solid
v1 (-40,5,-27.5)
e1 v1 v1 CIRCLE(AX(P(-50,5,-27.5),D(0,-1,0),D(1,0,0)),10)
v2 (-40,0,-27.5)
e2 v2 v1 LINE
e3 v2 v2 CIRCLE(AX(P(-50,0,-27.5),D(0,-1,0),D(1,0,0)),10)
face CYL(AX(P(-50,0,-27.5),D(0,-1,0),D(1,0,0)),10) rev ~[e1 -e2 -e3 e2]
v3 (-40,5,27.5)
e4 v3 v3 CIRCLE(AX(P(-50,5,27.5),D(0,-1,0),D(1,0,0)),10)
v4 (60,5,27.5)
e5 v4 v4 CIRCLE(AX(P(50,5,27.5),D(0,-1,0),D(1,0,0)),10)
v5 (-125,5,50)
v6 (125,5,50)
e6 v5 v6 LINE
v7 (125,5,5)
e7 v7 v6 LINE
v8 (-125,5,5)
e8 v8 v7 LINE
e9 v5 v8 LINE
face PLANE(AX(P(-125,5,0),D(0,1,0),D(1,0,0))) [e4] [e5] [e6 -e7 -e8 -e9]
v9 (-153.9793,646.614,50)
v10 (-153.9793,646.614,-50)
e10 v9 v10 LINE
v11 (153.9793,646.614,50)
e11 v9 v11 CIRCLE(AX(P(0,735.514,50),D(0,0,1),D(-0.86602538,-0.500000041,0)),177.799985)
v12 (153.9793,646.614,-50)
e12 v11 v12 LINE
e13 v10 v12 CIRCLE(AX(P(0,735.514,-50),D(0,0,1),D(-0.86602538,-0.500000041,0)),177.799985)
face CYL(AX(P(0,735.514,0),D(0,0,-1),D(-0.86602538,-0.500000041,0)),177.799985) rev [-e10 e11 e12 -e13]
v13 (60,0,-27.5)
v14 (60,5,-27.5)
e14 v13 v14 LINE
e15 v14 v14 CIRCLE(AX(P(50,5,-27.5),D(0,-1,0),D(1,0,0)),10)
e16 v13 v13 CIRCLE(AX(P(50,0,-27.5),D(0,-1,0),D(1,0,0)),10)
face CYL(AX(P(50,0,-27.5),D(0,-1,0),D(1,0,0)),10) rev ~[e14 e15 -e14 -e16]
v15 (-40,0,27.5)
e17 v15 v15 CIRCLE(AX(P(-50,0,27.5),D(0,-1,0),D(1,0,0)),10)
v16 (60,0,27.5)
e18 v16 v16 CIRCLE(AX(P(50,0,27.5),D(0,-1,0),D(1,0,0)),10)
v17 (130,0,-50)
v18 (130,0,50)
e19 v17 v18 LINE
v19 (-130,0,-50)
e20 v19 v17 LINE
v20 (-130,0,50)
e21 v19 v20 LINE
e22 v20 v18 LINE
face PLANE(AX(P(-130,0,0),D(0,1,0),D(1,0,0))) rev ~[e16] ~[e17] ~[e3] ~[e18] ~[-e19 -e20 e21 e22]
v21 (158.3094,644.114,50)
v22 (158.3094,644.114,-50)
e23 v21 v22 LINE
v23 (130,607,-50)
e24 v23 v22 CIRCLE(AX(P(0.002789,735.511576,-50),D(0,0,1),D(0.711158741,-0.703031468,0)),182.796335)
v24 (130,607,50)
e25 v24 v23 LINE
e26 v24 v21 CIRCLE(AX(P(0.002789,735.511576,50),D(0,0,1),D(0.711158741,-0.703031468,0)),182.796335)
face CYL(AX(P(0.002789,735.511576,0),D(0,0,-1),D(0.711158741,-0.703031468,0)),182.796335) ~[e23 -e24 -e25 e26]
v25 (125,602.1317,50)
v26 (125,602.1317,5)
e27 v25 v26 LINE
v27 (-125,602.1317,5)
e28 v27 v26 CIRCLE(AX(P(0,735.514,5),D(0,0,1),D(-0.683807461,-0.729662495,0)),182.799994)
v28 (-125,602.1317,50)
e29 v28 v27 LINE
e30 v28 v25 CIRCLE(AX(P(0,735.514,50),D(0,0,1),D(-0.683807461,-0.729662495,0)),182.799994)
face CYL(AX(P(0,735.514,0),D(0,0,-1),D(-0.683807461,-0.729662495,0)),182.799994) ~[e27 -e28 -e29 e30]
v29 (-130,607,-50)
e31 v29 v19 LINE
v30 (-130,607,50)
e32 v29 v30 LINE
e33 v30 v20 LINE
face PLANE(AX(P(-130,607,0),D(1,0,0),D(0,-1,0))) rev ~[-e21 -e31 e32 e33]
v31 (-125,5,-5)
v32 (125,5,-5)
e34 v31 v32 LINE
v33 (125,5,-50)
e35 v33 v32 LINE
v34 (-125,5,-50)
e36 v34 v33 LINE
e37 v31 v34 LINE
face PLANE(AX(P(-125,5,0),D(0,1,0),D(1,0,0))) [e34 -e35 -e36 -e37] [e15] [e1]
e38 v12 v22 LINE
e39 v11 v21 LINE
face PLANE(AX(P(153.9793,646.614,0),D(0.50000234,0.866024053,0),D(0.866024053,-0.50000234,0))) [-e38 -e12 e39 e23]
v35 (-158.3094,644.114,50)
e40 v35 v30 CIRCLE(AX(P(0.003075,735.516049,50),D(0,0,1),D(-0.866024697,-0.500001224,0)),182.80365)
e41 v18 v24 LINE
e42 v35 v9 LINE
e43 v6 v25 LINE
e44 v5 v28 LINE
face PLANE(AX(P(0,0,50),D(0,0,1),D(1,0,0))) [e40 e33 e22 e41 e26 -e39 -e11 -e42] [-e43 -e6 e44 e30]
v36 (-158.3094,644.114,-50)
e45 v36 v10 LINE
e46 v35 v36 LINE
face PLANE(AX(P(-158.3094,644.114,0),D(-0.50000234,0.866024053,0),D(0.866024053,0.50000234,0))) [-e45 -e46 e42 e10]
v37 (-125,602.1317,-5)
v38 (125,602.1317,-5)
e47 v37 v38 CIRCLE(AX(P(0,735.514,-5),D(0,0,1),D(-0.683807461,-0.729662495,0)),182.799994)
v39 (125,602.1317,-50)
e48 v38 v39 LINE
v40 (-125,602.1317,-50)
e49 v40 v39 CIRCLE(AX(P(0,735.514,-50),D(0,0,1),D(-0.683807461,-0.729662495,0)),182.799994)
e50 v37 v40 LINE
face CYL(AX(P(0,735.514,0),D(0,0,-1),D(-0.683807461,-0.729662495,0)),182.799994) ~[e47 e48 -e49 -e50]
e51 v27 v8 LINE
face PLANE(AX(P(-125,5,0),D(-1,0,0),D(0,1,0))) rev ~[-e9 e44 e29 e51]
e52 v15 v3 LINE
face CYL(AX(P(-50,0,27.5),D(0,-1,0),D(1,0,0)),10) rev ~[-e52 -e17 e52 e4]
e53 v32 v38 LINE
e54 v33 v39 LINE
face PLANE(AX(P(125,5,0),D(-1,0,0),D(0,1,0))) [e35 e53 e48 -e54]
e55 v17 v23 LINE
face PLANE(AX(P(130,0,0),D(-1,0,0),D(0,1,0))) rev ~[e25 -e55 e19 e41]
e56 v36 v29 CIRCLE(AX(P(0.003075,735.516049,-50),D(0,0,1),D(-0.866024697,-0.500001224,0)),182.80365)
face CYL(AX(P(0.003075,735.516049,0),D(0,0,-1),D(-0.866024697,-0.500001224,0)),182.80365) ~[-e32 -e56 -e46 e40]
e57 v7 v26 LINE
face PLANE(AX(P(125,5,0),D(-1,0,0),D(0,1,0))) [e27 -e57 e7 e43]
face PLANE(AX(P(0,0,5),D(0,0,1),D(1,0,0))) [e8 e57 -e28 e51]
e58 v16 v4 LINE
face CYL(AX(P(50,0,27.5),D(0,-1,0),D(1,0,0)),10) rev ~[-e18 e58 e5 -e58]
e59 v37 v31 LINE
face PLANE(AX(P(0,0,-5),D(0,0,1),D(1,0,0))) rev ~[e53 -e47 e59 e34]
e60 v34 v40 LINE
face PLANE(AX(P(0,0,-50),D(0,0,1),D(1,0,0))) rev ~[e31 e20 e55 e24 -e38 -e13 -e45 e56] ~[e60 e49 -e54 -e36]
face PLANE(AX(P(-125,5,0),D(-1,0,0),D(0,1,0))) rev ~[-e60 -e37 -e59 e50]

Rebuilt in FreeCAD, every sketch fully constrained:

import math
import FreeCAD as App
import Part
import Sketcher

V = App.Vector
Q = App.Units.Quantity

doc = App.newDocument("Part")
body = doc.addObject("PartDesign::Body", "Body")

# Sketch on XY plane
sketch1 = body.newObject("Sketcher::SketchObject", "Sketch")
sketch1.AttachmentSupport = (doc.getObject("XY_Plane"), [""])
sketch1.MapMode = "FlatFace"
sketch1.addGeometry([
    Part.ArcOfCircle(Part.Circle(V(0, 735.5, 0), V(0, 0, 1), 182.8), math.radians(-150), math.radians(-135.33)),  # 0
    Part.LineSegment(V(-130, 607, 0), V(-130, 0, 0)),  # 1
    Part.LineSegment(V(-130, 0, 0), V(130, 0, 0)),  # 2
    Part.LineSegment(V(130, 0, 0), V(130, 607, 0)),  # 3
    Part.ArcOfCircle(Part.Circle(V(0, 735.5, 0), V(0, 0, 1), 182.8), math.radians(-44.67), math.radians(-30)),  # 4
    Part.LineSegment(V(158.3, 644.1, 0), V(154, 646.6, 0)),  # 5
    Part.ArcOfCircle(Part.Circle(V(0, 735.5, 0), V(0, 0, 1), 177.8), math.radians(-150), math.radians(-30)),  # 6
    Part.LineSegment(V(-154, 646.6, 0), V(-158.3, 644.1, 0)),  # 7
    Part.LineSegment(V(125, 602.1, 0), V(125, 5, 0)),  # 8
    Part.LineSegment(V(125, 5, 0), V(-125, 5, 0)),  # 9
    Part.LineSegment(V(-125, 5, 0), V(-125, 602.1, 0)),  # 10
    Part.ArcOfCircle(Part.Circle(V(0, 735.5, 0), V(0, 0, 1), 182.8), math.radians(-133), math.radians(-47)),  # 11
], False)
sketch1.addConstraint([
    Sketcher.Constraint("Coincident", 0, 2, 1, 1),
    Sketcher.Constraint("Coincident", 1, 2, 2, 1),
    Sketcher.Constraint("Coincident", 2, 2, 3, 1),
    Sketcher.Constraint("Coincident", 3, 2, 4, 1),
    Sketcher.Constraint("Coincident", 4, 2, 5, 1),
    Sketcher.Constraint("Coincident", 5, 2, 6, 2),
    Sketcher.Constraint("Coincident", 6, 1, 7, 1),
    Sketcher.Constraint("Coincident", 7, 2, 0, 1),
    Sketcher.Constraint("Coincident", 8, 2, 9, 1),
    Sketcher.Constraint("Coincident", 9, 2, 10, 1),
    Sketcher.Constraint("Coincident", 10, 2, 11, 1),
    Sketcher.Constraint("Coincident", 11, 2, 8, 1),
    Sketcher.Constraint("Vertical", 1),
    Sketcher.Constraint("Horizontal", 2),
    Sketcher.Constraint("Vertical", 3),
    Sketcher.Constraint("Vertical", 8),
    Sketcher.Constraint("Horizontal", 9),
    Sketcher.Constraint("Vertical", 10),
    Sketcher.Constraint("Coincident", 11, 3, 6, 3),
    Sketcher.Constraint("Symmetric", 1, 2, 2, 2, -1, 1),
    Sketcher.Constraint("Symmetric", 5, 2, 6, 1, -2),
    Sketcher.Constraint("Symmetric", 4, 2, 7, 2, -2),
    Sketcher.Constraint("Horizontal", 0, 2, 3, 2),
    Sketcher.Constraint("Horizontal", 10, 2, 11, 2),
    Sketcher.Constraint("Radius", 6, Q("177.8 mm")),
    Sketcher.Constraint("Radius", 11, Q("182.8 mm")),
    Sketcher.Constraint("DistanceX", 2, 1, 2, 2, Q("260 mm")),
    Sketcher.Constraint("DistanceY", 1, 2, 1, 1, Q("607 mm")),
    Sketcher.Constraint("Distance", 5, Q("5 mm")),
    Sketcher.Constraint("DistanceY", -1, 1, 8, 2, Q("5 mm")),
    Sketcher.Constraint("DistanceX", 8, 2, 2, 2, Q("5 mm")),
    Sketcher.Constraint("Angle", 5, Q("149.9998 deg")),
    Sketcher.Constraint("DistanceX", -1, 1, 4, 2, Q("158.3094 mm")),
    Sketcher.Constraint("Radius", 0, Q("182.8036 mm")),
    Sketcher.Constraint("Radius", 4, Q("182.7963 mm")),
    Sketcher.Constraint("DistanceY", 8, 2, 8, 1, Q("597.1317 mm")),
])
pad1 = body.newObject("PartDesign::Pad", "Pad")
pad1.Profile = sketch1
pad1.Length = 100
pad1.Midplane = True

# Sketch on XY plane
sketch2 = body.newObject("Sketcher::SketchObject", "Sketch001")
sketch2.AttachmentSupport = (doc.getObject("XY_Plane"), [""])
sketch2.MapMode = "FlatFace"
sketch2.addGeometry([
    Part.ArcOfCircle(Part.Circle(V(0, 736, 0), V(0, 0, 1), 183), math.radians(-133), math.radians(-47)),
    Part.LineSegment(V(-125, 602, 0), V(-125, 5, 0)),
    Part.LineSegment(V(-125, 5, 0), V(125, 5, 0)),
    Part.LineSegment(V(125, 5, 0), V(125, 602, 0)),
], False)
sketch2.addConstraint([
    Sketcher.Constraint("Coincident", 0, 1, 1, 1),
    Sketcher.Constraint("Coincident", 1, 2, 2, 1),
    Sketcher.Constraint("Coincident", 2, 2, 3, 1),
    Sketcher.Constraint("Coincident", 3, 2, 0, 2),
    Sketcher.Constraint("Vertical", 1),
    Sketcher.Constraint("Horizontal", 2),
    Sketcher.Constraint("Vertical", 3),
    Sketcher.Constraint("Symmetric", 0, 1, 3, 2, -2),
    Sketcher.Constraint("Radius", 0, Q("182.8 mm")),
    Sketcher.Constraint("DistanceX", 2, 1, 2, 2, Q("250 mm")),
    Sketcher.Constraint("DistanceY", -1, 1, 1, 2, Q("5 mm")),
    Sketcher.Constraint("DistanceY", 1, 2, 1, 1, Q("597.1317 mm")),
])
pad2 = body.newObject("PartDesign::Pad", "Pad001")
pad2.Profile = sketch2
pad2.Length = 10
pad2.Midplane = True

# Sketch on XZ plane
sketch3 = body.newObject("Sketcher::SketchObject", "Sketch002")
sketch3.AttachmentSupport = (doc.getObject("XZ_Plane"), [""])
sketch3.MapMode = "FlatFace"
sketch3.addGeometry([
    Part.Circle(V(50, -28, 0), V(0, 0, 1), 10),
    Part.Circle(V(50, 28, 0), V(0, 0, 1), 10),
    Part.Circle(V(-50, -28, 0), V(0, 0, 1), 10),
    Part.Circle(V(-50, 28, 0), V(0, 0, 1), 10),
], False)
sketch3.addConstraint([
    Sketcher.Constraint("Equal", 0, 1),
    Sketcher.Constraint("Equal", 1, 2),
    Sketcher.Constraint("Equal", 2, 3),
    Sketcher.Constraint("Symmetric", 1, 3, 2, 3, -1, 1),
    Sketcher.Constraint("Symmetric", 0, 3, 3, 3, -1, 1),
    Sketcher.Constraint("Symmetric", 0, 3, 2, 3, -2),
    Sketcher.Constraint("Diameter", 0, Q("20 mm")),
    Sketcher.Constraint("DistanceY", 0, 3, 1, 3, Q("55 mm")),
    Sketcher.Constraint("DistanceX", 2, 3, 0, 3, Q("100 mm")),
])
pocket1 = body.newObject("PartDesign::Pocket", "Pocket")
pocket1.Profile = sketch3
pocket1.Length = 10

doc.recompute()
